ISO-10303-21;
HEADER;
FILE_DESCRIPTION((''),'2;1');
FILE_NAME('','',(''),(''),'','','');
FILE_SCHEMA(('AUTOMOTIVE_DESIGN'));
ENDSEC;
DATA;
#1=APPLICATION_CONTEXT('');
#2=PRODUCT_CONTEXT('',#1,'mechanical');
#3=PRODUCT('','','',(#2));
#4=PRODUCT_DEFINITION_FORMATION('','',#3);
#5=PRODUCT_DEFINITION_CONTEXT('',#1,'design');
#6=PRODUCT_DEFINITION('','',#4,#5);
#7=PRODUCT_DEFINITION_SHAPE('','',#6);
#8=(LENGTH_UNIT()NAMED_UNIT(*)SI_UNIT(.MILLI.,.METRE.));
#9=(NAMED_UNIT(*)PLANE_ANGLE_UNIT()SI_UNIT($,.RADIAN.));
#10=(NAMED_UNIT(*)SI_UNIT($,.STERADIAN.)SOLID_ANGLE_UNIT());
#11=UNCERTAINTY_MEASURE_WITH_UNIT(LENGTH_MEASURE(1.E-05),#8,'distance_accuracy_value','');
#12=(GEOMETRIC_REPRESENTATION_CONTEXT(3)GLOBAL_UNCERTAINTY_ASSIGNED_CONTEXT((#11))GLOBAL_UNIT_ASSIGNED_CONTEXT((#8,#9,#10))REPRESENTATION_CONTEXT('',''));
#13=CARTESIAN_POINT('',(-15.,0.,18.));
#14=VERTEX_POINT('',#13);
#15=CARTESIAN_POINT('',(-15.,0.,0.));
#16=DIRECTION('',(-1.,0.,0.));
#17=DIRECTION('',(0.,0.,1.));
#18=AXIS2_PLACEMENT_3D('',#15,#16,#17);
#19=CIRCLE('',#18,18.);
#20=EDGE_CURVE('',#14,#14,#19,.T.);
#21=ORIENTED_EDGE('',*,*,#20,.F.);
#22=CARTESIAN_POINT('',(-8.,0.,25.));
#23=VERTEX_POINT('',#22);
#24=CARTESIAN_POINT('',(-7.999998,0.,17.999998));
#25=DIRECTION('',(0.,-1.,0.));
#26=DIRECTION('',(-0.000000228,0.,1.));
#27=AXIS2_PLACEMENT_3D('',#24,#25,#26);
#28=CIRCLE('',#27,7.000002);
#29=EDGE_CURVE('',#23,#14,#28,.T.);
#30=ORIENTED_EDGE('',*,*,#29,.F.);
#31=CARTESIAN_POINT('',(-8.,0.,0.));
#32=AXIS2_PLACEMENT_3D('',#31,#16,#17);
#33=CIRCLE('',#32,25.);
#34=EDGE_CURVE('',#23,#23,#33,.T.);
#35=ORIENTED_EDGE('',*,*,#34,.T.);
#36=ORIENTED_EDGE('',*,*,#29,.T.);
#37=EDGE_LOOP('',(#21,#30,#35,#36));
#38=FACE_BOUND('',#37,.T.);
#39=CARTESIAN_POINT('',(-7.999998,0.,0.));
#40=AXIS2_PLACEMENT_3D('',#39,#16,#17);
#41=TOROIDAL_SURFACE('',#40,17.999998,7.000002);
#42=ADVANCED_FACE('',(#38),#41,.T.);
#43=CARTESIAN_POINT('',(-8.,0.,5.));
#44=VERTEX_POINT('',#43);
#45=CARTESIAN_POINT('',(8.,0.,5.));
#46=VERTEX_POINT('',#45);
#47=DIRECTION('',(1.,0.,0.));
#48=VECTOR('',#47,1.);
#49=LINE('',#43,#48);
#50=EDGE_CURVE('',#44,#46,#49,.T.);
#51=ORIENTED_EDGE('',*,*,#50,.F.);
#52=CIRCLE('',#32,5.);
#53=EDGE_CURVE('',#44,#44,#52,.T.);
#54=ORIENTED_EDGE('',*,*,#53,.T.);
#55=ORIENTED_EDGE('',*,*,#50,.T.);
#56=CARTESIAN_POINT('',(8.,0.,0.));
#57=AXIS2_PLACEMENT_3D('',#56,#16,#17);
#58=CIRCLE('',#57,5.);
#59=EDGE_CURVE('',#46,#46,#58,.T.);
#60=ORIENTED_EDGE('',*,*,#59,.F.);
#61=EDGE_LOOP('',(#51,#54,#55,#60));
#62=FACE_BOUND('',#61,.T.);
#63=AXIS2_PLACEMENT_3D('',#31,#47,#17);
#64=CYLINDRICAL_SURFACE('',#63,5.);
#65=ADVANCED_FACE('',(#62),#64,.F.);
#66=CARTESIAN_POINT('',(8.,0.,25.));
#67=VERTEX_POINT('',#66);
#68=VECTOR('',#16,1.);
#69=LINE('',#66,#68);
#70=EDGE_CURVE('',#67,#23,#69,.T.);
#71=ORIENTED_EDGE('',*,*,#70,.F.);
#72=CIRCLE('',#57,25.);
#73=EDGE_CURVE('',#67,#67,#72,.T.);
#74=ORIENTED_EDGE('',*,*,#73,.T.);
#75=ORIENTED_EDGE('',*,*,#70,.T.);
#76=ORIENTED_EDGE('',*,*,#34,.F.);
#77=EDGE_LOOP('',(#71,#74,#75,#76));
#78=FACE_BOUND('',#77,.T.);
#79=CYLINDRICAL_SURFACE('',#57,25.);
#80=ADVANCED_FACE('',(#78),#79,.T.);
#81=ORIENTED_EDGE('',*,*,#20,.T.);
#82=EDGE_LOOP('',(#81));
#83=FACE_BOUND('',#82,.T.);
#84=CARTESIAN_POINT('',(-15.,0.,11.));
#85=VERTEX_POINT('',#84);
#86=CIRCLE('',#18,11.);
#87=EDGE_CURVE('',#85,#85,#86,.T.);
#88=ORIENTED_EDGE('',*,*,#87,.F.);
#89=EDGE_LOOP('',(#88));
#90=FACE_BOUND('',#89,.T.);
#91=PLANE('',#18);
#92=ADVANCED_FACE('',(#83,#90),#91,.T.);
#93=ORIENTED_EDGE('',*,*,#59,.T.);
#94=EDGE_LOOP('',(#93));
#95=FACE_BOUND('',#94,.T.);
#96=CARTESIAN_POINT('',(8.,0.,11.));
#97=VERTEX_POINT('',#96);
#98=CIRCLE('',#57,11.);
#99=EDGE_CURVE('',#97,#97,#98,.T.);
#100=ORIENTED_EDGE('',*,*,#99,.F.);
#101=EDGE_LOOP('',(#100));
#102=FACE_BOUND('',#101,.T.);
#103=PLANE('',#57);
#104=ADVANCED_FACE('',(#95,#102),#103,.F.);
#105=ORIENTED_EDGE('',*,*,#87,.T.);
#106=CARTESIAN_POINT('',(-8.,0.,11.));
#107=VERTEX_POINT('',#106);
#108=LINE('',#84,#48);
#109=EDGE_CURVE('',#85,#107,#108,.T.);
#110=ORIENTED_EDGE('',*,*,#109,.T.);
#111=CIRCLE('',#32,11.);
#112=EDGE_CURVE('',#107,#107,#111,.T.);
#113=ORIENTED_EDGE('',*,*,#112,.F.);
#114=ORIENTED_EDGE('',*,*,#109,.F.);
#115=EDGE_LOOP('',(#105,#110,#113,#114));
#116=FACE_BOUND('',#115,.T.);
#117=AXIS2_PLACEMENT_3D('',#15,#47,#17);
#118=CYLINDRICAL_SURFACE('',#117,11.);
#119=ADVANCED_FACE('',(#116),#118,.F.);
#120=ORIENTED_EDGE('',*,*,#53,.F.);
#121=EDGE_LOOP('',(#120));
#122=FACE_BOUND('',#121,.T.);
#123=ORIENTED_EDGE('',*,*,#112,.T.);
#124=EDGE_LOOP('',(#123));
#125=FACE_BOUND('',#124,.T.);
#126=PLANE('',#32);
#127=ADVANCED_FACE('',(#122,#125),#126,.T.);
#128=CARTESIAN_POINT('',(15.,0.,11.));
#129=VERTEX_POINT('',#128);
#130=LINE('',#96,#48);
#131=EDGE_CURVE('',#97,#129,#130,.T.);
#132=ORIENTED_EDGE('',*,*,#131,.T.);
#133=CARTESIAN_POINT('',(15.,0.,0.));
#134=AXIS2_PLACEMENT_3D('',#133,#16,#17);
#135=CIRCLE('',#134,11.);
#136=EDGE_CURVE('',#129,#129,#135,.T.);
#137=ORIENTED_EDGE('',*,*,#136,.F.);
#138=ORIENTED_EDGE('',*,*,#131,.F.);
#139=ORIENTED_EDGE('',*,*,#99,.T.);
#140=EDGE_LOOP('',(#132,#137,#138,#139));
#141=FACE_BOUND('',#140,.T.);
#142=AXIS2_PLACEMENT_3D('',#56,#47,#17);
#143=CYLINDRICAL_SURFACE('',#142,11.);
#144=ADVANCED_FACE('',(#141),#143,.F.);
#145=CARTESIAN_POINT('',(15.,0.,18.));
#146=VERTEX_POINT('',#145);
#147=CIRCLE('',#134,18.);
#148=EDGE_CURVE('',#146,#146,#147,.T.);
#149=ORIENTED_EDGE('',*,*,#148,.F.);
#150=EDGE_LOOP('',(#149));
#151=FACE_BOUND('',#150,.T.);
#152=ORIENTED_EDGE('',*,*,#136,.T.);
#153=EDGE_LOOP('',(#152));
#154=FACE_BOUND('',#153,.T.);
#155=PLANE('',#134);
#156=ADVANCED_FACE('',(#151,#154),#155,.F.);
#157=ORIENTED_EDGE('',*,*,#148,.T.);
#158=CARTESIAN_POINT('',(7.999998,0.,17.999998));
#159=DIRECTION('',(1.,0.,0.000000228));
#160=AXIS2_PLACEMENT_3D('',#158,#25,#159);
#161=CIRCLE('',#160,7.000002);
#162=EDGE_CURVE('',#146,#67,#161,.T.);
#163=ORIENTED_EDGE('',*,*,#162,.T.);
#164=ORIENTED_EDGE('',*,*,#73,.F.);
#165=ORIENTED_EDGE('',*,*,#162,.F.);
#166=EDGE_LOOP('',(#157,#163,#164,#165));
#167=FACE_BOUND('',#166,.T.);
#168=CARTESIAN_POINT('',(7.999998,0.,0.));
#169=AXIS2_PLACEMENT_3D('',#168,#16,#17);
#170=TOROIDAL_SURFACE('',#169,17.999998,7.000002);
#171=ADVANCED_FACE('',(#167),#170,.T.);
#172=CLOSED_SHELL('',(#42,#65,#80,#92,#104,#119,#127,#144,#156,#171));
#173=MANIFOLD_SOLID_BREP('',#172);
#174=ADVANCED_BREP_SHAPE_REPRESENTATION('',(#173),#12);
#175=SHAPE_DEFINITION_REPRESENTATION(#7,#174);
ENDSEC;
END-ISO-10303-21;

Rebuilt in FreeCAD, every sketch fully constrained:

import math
import FreeCAD as App
import Part
import Sketcher

V = App.Vector

doc = App.newDocument("Part")
body = doc.addObject("PartDesign::Body", "Body")

# Sketch on XZ plane
sketch1 = body.newObject("Sketcher::SketchObject", "Sketch")
sketch1.AttachmentSupport = (doc.getObject("XZ_Plane"), [""])
sketch1.MapMode = "FlatFace"
sketch1.addGeometry([
    Part.LineSegment(V(-15, 11, 0), V(-8, 11, 0)),  # 0
    Part.LineSegment(V(-8, 11, 0), V(-8, 5, 0)),  # 1
    Part.LineSegment(V(-8, 5, 0), V(8, 5, 0)),  # 2
    Part.LineSegment(V(8, 5, 0), V(8, 11, 0)),  # 3
    Part.LineSegment(V(8, 11, 0), V(15, 11, 0)),  # 4
    Part.LineSegment(V(15, 11, 0), V(15, 18, 0)),  # 5
    Part.ArcOfCircle(Part.Circle(V(8, 18, 0), V(0, 0, 1), 7), math.radians(0), math.radians(90)),  # 6
    Part.LineSegment(V(8, 25, 0), V(-8, 25, 0)),  # 7
    Part.ArcOfCircle(Part.Circle(V(-8, 18, 0), V(0, 0, 1), 7), math.radians(90), math.radians(180)),  # 8
    Part.LineSegment(V(-15, 18, 0), V(-15, 11, 0)),  # 9
], False)
sketch1.addConstraint([
    Sketcher.Constraint("Coincident", 0, 2, 1, 1),
    Sketcher.Constraint("Coincident", 1, 2, 2, 1),
    Sketcher.Constraint("Coincident", 2, 2, 3, 1),
    Sketcher.Constraint("Coincident", 3, 2, 4, 1),
    Sketcher.Constraint("Coincident", 4, 2, 5, 1),
    Sketcher.Constraint("Tangent", 5, 2, 6, 1),
    Sketcher.Constraint("Tangent", 6, 2, 7, 1),
    Sketcher.Constraint("Tangent", 7, 2, 8, 1),
    Sketcher.Constraint("Tangent", 8, 2, 9, 1),
    Sketcher.Constraint("Coincident", 9, 2, 0, 1),
    Sketcher.Constraint("Horizontal", 0),
    Sketcher.Constraint("Vertical", 1),
    Sketcher.Constraint("Horizontal", 2),
    Sketcher.Constraint("Vertical", 3),
    Sketcher.Constraint("Horizontal", 4),
    Sketcher.Constraint("Vertical", 5),
    Sketcher.Constraint("Horizontal", 7),
    Sketcher.Constraint("Vertical", 9),
    Sketcher.Constraint("Equal", 6, 8),
    Sketcher.Constraint("Symmetric", 0, 2, 3, 2, -2),
    Sketcher.Constraint("Vertical", 8, 3, 0, 2),
    Sketcher.Constraint("Vertical", 6, 3, 2, 2),
    Sketcher.Constraint("Equal", 4, 5),
    Sketcher.Constraint("Radius", 6, 7.000002),
    Sketcher.Constraint("DistanceX", 2, 1, 2, 2, 16.0),
    Sketcher.Constraint("DistanceY", 1, 2, 1, 1, 6.0),
    Sketcher.Constraint("DistanceY", -1, 1, 6, 3, 17.999998),
])
revolution = body.newObject("PartDesign::Revolution", "Revolution")
revolution.Profile = sketch1
revolution.ReferenceAxis = (sketch1, ["H_Axis"])
revolution.Angle = 360

doc.recompute()
